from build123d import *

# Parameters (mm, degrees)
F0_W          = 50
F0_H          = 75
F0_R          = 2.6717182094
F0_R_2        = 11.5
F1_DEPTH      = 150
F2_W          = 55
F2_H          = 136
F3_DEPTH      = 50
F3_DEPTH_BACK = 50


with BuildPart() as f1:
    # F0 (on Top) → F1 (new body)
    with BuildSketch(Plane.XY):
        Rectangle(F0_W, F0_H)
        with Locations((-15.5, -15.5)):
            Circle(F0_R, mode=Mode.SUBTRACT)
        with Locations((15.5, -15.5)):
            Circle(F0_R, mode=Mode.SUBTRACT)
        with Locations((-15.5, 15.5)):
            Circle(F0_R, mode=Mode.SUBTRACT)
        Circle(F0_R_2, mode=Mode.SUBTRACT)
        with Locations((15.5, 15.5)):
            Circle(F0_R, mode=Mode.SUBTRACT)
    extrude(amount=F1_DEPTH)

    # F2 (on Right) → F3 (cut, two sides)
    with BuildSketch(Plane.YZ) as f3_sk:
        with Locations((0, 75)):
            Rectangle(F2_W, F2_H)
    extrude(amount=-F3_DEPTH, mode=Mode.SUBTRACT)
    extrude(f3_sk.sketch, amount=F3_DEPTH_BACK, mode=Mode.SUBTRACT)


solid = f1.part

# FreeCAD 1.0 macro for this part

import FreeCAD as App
import Part
import Sketcher

V = App.Vector
Q = App.Units.Quantity

doc = App.newDocument("Part")
body = doc.addObject("PartDesign::Body", "Body")

# Sketch on XY plane
sketch1 = body.newObject("Sketcher::SketchObject", "Sketch")
sketch1.AttachmentSupport = (doc.getObject("XY_Plane"), [""])
sketch1.MapMode = "FlatFace"
sketch1.addGeometry(Part.LineSegment(V(-25, 37.5, 0), V(-25, -37.5, 0)), False)
sketch1.addGeometry(Part.LineSegment(V(-25, -37.5, 0), V(25, -37.5, 0)), False)
sketch1.addGeometry(Part.LineSegment(V(25, -37.5, 0), V(25, 37.5, 0)), False)
sketch1.addGeometry(Part.LineSegment(V(25, 37.5, 0), V(-25, 37.5, 0)), False)
sketch1.addGeometry(Part.Circle(V(-15.5, -15.5, 0), V(0, 0, 1), 2.671718), False)
sketch1.addGeometry(Part.Circle(V(15.5, -15.5, 0), V(0, 0, 1), 2.671718), False)
sketch1.addGeometry(Part.Circle(V(-15.5, 15.5, 0), V(0, 0, 1), 2.671718), False)
sketch1.addGeometry(Part.Circle(V(0, 0, 0), V(0, 0, 1), 11.5), False)
sketch1.addGeometry(Part.Circle(V(15.5, 15.5, 0), V(0, 0, 1), 2.671718), False)
sketch1.addConstraint(Sketcher.Constraint("Coincident", 0, 2, 1, 1))
sketch1.addConstraint(Sketcher.Constraint("Coincident", 1, 2, 2, 1))
sketch1.addConstraint(Sketcher.Constraint("Coincident", 2, 2, 3, 1))
sketch1.addConstraint(Sketcher.Constraint("Coincident", 3, 2, 0, 1))
sketch1.addConstraint(Sketcher.Constraint("Vertical", 0))
sketch1.addConstraint(Sketcher.Constraint("Horizontal", 1))
sketch1.addConstraint(Sketcher.Constraint("Vertical", 2))
sketch1.addConstraint(Sketcher.Constraint("Horizontal", 3))
sketch1.addConstraint(Sketcher.Constraint("Coincident", 7, 3, -1, 1))
sketch1.addConstraint(Sketcher.Constraint("Equal", 4, 5))
sketch1.addConstraint(Sketcher.Constraint("Equal", 5, 6))
sketch1.addConstraint(Sketcher.Constraint("Equal", 6, 8))
sketch1.addConstraint(Sketcher.Constraint("Symmetric", 5, 3, 6, 3, -1, 1))
sketch1.addConstraint(Sketcher.Constraint("Symmetric", 4, 3, 8, 3, -1, 1))
sketch1.addConstraint(Sketcher.Constraint("Symmetric", 0, 2, 2, 2, -1, 1))
sketch1.addConstraint(Sketcher.Constraint("Symmetric", 4, 3, 5, 3, -2))
sketch1.addConstraint(Sketcher.Constraint("Diameter", 7, Q("23 mm")))
sketch1.addConstraint(Sketcher.Constraint("DistanceX", 1, 1, 1, 2, Q("50 mm")))
sketch1.addConstraint(Sketcher.Constraint("DistanceY", 0, 2, 0, 1, Q("75 mm")))
sketch1.addConstraint(Sketcher.Constraint("DistanceX", 4, 3, 5, 3, Q("31 mm")))
sketch1.addConstraint(Sketcher.Constraint("DistanceY", 4, 3, 6, 3, Q("31 mm")))
sketch1.addConstraint(Sketcher.Constraint("Diameter", 4, Q("5.343436 mm")))
pad1 = body.newObject("PartDesign::Pad", "Pad")
pad1.Profile = sketch1
pad1.Length = 150

# Sketch on YZ plane
sketch2 = body.newObject("Sketcher::SketchObject", "Sketch001")
sketch2.AttachmentSupport = (doc.getObject("YZ_Plane"), [""])
sketch2.MapMode = "FlatFace"
sketch2.addGeometry(Part.LineSegment(V(-27.5, 143, 0), V(-27.5, 7, 0)), False)
sketch2.addGeometry(Part.LineSegment(V(-27.5, 7, 0), V(27.5, 7, 0)), False)
sketch2.addGeometry(Part.LineSegment(V(27.5, 7, 0), V(27.5, 143, 0)), False)
sketch2.addGeometry(Part.LineSegment(V(27.5, 143, 0), V(-27.5, 143, 0)), False)
sketch2.addConstraint(Sketcher.Constraint("Coincident", 0, 2, 1, 1))
sketch2.addConstraint(Sketcher.Constraint("Coincident", 1, 2, 2, 1))
sketch2.addConstraint(Sketcher.Constraint("Coincident", 2, 2, 3, 1))
sketch2.addConstraint(Sketcher.Constraint("Coincident", 3, 2, 0, 1))
sketch2.addConstraint(Sketcher.Constraint("Vertical", 0))
sketch2.addConstraint(Sketcher.Constraint("Horizontal", 1))
sketch2.addConstraint(Sketcher.Constraint("Vertical", 2))
sketch2.addConstraint(Sketcher.Constraint("Horizontal", 3))
sketch2.addConstraint(Sketcher.Constraint("DistanceX", 1, 1, 1, 2, Q("55 mm")))
sketch2.addConstraint(Sketcher.Constraint("DistanceY", 0, 2, 0, 1, Q("136 mm")))
sketch2.addConstraint(Sketcher.Constraint("DistanceY", -1, 1, 0, 2, Q("7 mm")))
sketch2.addConstraint(Sketcher.Constraint("DistanceX", 0, 2, -1, 1, Q("27.5 mm")))
pocket1 = body.newObject("PartDesign::Pocket", "Pocket")
pocket1.Profile = sketch2
pocket1.Type = "ThroughAll"
pocket1.Midplane = True

doc.recompute()
